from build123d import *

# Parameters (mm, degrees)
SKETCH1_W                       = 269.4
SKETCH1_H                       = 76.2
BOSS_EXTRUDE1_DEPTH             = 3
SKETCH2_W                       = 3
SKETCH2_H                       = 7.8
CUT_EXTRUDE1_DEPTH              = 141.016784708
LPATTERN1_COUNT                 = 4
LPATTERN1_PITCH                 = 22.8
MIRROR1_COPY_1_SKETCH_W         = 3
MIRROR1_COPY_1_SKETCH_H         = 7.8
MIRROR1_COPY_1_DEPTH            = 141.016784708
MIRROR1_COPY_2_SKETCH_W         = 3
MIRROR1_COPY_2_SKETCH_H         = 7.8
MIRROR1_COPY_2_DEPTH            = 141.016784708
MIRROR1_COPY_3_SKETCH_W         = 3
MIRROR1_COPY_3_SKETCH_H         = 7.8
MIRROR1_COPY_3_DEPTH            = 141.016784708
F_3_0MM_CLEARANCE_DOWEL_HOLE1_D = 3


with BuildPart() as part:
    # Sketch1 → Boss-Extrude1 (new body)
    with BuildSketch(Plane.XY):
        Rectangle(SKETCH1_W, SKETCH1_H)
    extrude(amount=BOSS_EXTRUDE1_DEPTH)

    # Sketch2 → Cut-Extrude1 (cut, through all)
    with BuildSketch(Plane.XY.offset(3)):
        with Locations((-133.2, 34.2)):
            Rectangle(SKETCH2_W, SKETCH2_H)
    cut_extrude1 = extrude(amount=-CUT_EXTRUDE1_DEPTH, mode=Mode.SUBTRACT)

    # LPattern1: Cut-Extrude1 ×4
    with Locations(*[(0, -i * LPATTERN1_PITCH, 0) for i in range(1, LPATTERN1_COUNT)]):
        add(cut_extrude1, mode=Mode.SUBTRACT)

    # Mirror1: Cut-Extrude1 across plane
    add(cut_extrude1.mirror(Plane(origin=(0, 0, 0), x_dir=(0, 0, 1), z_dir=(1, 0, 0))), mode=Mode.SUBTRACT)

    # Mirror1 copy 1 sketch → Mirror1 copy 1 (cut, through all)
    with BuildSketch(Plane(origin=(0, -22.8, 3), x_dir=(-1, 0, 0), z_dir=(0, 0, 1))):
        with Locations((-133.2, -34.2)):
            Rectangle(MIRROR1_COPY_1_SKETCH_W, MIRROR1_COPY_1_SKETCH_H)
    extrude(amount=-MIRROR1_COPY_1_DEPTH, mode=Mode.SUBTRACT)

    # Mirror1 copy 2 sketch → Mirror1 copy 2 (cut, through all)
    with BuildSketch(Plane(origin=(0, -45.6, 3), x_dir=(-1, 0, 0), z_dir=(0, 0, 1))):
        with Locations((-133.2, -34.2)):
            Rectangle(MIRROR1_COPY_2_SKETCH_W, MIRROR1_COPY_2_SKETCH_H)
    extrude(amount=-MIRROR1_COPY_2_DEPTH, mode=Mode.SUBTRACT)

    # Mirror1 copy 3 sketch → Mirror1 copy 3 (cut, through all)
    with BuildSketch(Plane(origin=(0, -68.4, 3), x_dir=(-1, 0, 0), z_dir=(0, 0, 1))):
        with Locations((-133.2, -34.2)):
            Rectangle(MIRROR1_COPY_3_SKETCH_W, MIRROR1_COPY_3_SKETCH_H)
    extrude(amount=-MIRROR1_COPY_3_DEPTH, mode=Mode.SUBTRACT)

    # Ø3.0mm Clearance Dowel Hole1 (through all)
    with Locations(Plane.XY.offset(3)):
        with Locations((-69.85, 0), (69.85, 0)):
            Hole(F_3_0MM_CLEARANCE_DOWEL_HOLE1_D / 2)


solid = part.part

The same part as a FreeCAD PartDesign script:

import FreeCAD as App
import Part
import Sketcher

doc = App.newDocument("Part")
body = doc.addObject("PartDesign::Body", "Body")

# Sketch on XY plane
sketch1 = body.newObject("Sketcher::SketchObject", "Sketch")
sketch1.AttachmentSupport = (doc.getObject("XY_Plane"), [""])
sketch1.MapMode = "FlatFace"
sketch1.addGeometry([
    Part.LineSegment(App.Vector(-135, 38, 0), App.Vector(-135, -38, 0)),
    Part.LineSegment(App.Vector(-135, -38, 0), App.Vector(135, -38, 0)),
    Part.LineSegment(App.Vector(135, -38, 0), App.Vector(135, 38, 0)),
    Part.LineSegment(App.Vector(135, 38, 0), App.Vector(-135, 38, 0)),
], False)
sketch1.addConstraint([
    Sketcher.Constraint("Coincident", 0, 2, 1, 1),
    Sketcher.Constraint("Coincident", 1, 2, 2, 1),
    Sketcher.Constraint("Coincident", 2, 2, 3, 1),
    Sketcher.Constraint("Coincident", 3, 2, 0, 1),
    Sketcher.Constraint("Vertical", 0),
    Sketcher.Constraint("Horizontal", 1),
    Sketcher.Constraint("Vertical", 2),
    Sketcher.Constraint("Horizontal", 3),
    Sketcher.Constraint("Symmetric", 0, 2, 2, 2, -1, 1),
    Sketcher.Constraint("DistanceX", 1, 1, 1, 2, 269.4),
    Sketcher.Constraint("DistanceY", 0, 2, 0, 1, 76.2),
])
pad1 = body.newObject("PartDesign::Pad", "Pad")
pad1.Profile = sketch1
pad1.Length = 3

# Sketch on XY plane
sketch2 = body.newObject("Sketcher::SketchObject", "Sketch001")
sketch2.AttachmentSupport = (doc.getObject("XY_Plane"), [""])
sketch2.MapMode = "FlatFace"
sketch2.AttachmentOffset = App.Placement(App.Vector(0, 0, 3), App.Rotation())
sketch2.addGeometry([
    Part.LineSegment(App.Vector(-134.7, 38.1, 0), App.Vector(-134.7, 30.3, 0)),
    Part.LineSegment(App.Vector(-134.7, 30.3, 0), App.Vector(-131.7, 30.3, 0)),
    Part.LineSegment(App.Vector(-131.7, 30.3, 0), App.Vector(-131.7, 38.1, 0)),
    Part.LineSegment(App.Vector(-131.7, 38.1, 0), App.Vector(-134.7, 38.1, 0)),
], False)
sketch2.addConstraint([
    Sketcher.Constraint("Coincident", 0, 2, 1, 1),
    Sketcher.Constraint("Coincident", 1, 2, 2, 1),
    Sketcher.Constraint("Coincident", 2, 2, 3, 1),
    Sketcher.Constraint("Coincident", 3, 2, 0, 1),
    Sketcher.Constraint("Vertical", 0),
    Sketcher.Constraint("Horizontal", 1),
    Sketcher.Constraint("Vertical", 2),
    Sketcher.Constraint("Horizontal", 3),
    Sketcher.Constraint("DistanceX", 1, 1, 1, 2, 3.0),
    Sketcher.Constraint("DistanceY", 0, 2, 0, 1, 7.8),
    Sketcher.Constraint("DistanceX", 0, 2, -1, 1, 134.7),
    Sketcher.Constraint("DistanceY", -1, 1, 0, 2, 30.3),
])
pocket1 = body.newObject("PartDesign::Pocket", "Pocket")
pocket1.Profile = sketch2
pocket1.Type = "ThroughAll"
doc.recompute()

linearpattern = body.newObject("PartDesign::LinearPattern", "LinearPattern")
linearpattern.Originals = [pocket1]
linearpattern.Direction = (doc.getObject("Y_Axis"), [""])
linearpattern.Mode = "offset"
linearpattern.Offset = 22.8
linearpattern.Occurrences = 4
linearpattern.Reversed = True
body.Tip = linearpattern
doc.recompute()

mirrored = body.newObject("PartDesign::Mirrored", "Mirrored")
mirrored.Originals = [pocket1]
mirrored.MirrorPlane = (doc.getObject("YZ_Plane"), [""])
body.Tip = mirrored

# Sketch on XY plane
sketch3 = body.newObject("Sketcher::SketchObject", "Sketch002")
sketch3.AttachmentSupport = (doc.getObject("XY_Plane"), [""])
sketch3.MapMode = "FlatFace"
sketch3.AttachmentOffset = App.Placement(App.Vector(0, 0, 3), App.Rotation())
sketch3.addGeometry([
    Part.LineSegment(App.Vector(134.7, 7.5, 0), App.Vector(134.7, 15.3, 0)),
    Part.LineSegment(App.Vector(134.7, 15.3, 0), App.Vector(131.7, 15.3, 0)),
    Part.LineSegment(App.Vector(131.7, 15.3, 0), App.Vector(131.7, 7.5, 0)),
    Part.LineSegment(App.Vector(131.7, 7.5, 0), App.Vector(134.7, 7.5, 0)),
], False)
sketch3.addConstraint([
    Sketcher.Constraint("Coincident", 0, 2, 1, 1),
    Sketcher.Constraint("Coincident", 1, 2, 2, 1),
    Sketcher.Constraint("Coincident", 2, 2, 3, 1),
    Sketcher.Constraint("Coincident", 3, 2, 0, 1),
    Sketcher.Constraint("Vertical", 0),
    Sketcher.Constraint("Horizontal", 1),
    Sketcher.Constraint("Vertical", 2),
    Sketcher.Constraint("Horizontal", 3),
    Sketcher.Constraint("DistanceX", 1, 2, 1, 1, 3.0),
    Sketcher.Constraint("DistanceY", 0, 1, 0, 2, 7.8),
    Sketcher.Constraint("DistanceX", -1, 1, 0, 2, 134.7),
    Sketcher.Constraint("DistanceY", -1, 1, 0, 2, 15.3),
])
pocket2 = body.newObject("PartDesign::Pocket", "Pocket001")
pocket2.Profile = sketch3
pocket2.Type = "ThroughAll"

# Sketch on XY plane
sketch4 = body.newObject("Sketcher::SketchObject", "Sketch003")
sketch4.AttachmentSupport = (doc.getObject("XY_Plane"), [""])
sketch4.MapMode = "FlatFace"
sketch4.AttachmentOffset = App.Placement(App.Vector(0, 0, 3), App.Rotation())
sketch4.addGeometry([
    Part.LineSegment(App.Vector(134.7, -15.3, 0), App.Vector(134.7, -7.5, 0)),
    Part.LineSegment(App.Vector(134.7, -7.5, 0), App.Vector(131.7, -7.5, 0)),
    Part.LineSegment(App.Vector(131.7, -7.5, 0), App.Vector(131.7, -15.3, 0)),
    Part.LineSegment(App.Vector(131.7, -15.3, 0), App.Vector(134.7, -15.3, 0)),
], False)
sketch4.addConstraint([
    Sketcher.Constraint("Coincident", 0, 2, 1, 1),
    Sketcher.Constraint("Coincident", 1, 2, 2, 1),
    Sketcher.Constraint("Coincident", 2, 2, 3, 1),
    Sketcher.Constraint("Coincident", 3, 2, 0, 1),
    Sketcher.Constraint("Vertical", 0),
    Sketcher.Constraint("Horizontal", 1),
    Sketcher.Constraint("Vertical", 2),
    Sketcher.Constraint("Horizontal", 3),
    Sketcher.Constraint("DistanceX", 1, 2, 1, 1, 3.0),
    Sketcher.Constraint("DistanceY", 0, 1, 0, 2, 7.8),
    Sketcher.Constraint("DistanceX", -1, 1, 0, 2, 134.7),
    Sketcher.Constraint("DistanceY", 0, 2, -1, 1, 7.5),
])
pocket3 = body.newObject("PartDesign::Pocket", "Pocket002")
pocket3.Profile = sketch4
pocket3.Type = "ThroughAll"

# Sketch on XY plane
sketch5 = body.newObject("Sketcher::SketchObject", "Sketch004")
sketch5.AttachmentSupport = (doc.getObject("XY_Plane"), [""])
sketch5.MapMode = "FlatFace"
sketch5.AttachmentOffset = App.Placement(App.Vector(0, 0, 3), App.Rotation())
sketch5.addGeometry([
    Part.LineSegment(App.Vector(134.7, -38.1, 0), App.Vector(134.7, -30.3, 0)),
    Part.LineSegment(App.Vector(134.7, -30.3, 0), App.Vector(131.7, -30.3, 0)),
    Part.LineSegment(App.Vector(131.7, -30.3, 0), App.Vector(131.7, -38.1, 0)),
    Part.LineSegment(App.Vector(131.7, -38.1, 0), App.Vector(134.7, -38.1, 0)),
], False)
sketch5.addConstraint([
    Sketcher.Constraint("Coincident", 0, 2, 1, 1),
    Sketcher.Constraint("Coincident", 1, 2, 2, 1),
    Sketcher.Constraint("Coincident", 2, 2, 3, 1),
    Sketcher.Constraint("Coincident", 3, 2, 0, 1),
    Sketcher.Constraint("Vertical", 0),
    Sketcher.Constraint("Horizontal", 1),
    Sketcher.Constraint("Vertical", 2),
    Sketcher.Constraint("Horizontal", 3),
    Sketcher.Constraint("DistanceX", 1, 2, 1, 1, 3.0),
    Sketcher.Constraint("DistanceY", 0, 1, 0, 2, 7.8),
    Sketcher.Constraint("DistanceX", -1, 1, 0, 2, 134.7),
    Sketcher.Constraint("DistanceY", 0, 2, -1, 1, 30.3),
])
pocket4 = body.newObject("PartDesign::Pocket", "Pocket003")
pocket4.Profile = sketch5
pocket4.Type = "ThroughAll"

# Sketch on XY plane
sketch6 = body.newObject("Sketcher::SketchObject", "Sketch005")
sketch6.AttachmentSupport = (doc.getObject("XY_Plane"), [""])
sketch6.MapMode = "FlatFace"
sketch6.AttachmentOffset = App.Placement(App.Vector(0, 0, 3), App.Rotation())
sketch6.addGeometry([
    Part.Circle(App.Vector(-69.8, 0, 0), App.Vector(0, 0, 1), 1.5),
    Part.Circle(App.Vector(69.8, 0, 0), App.Vector(0, 0, 1), 1.5),
], False)
sketch6.addConstraint([
    Sketcher.Constraint("Equal", 0, 1),
    Sketcher.Constraint("Symmetric", 0, 3, 1, 3, -1, 1),
    Sketcher.Constraint("PointOnObject", 0, 3, -1),
    Sketcher.Constraint("Diameter", 0, 3.0),
    Sketcher.Constraint("DistanceX", 0, 3, 1, 3, 139.7),
])
doc.recompute()
hole = body.newObject("PartDesign::Hole", "Hole")
hole.Profile = sketch6
hole.ThreadType = "None"
hole.Diameter = 3
hole.DepthType = "ThroughAll"

doc.recompute()
